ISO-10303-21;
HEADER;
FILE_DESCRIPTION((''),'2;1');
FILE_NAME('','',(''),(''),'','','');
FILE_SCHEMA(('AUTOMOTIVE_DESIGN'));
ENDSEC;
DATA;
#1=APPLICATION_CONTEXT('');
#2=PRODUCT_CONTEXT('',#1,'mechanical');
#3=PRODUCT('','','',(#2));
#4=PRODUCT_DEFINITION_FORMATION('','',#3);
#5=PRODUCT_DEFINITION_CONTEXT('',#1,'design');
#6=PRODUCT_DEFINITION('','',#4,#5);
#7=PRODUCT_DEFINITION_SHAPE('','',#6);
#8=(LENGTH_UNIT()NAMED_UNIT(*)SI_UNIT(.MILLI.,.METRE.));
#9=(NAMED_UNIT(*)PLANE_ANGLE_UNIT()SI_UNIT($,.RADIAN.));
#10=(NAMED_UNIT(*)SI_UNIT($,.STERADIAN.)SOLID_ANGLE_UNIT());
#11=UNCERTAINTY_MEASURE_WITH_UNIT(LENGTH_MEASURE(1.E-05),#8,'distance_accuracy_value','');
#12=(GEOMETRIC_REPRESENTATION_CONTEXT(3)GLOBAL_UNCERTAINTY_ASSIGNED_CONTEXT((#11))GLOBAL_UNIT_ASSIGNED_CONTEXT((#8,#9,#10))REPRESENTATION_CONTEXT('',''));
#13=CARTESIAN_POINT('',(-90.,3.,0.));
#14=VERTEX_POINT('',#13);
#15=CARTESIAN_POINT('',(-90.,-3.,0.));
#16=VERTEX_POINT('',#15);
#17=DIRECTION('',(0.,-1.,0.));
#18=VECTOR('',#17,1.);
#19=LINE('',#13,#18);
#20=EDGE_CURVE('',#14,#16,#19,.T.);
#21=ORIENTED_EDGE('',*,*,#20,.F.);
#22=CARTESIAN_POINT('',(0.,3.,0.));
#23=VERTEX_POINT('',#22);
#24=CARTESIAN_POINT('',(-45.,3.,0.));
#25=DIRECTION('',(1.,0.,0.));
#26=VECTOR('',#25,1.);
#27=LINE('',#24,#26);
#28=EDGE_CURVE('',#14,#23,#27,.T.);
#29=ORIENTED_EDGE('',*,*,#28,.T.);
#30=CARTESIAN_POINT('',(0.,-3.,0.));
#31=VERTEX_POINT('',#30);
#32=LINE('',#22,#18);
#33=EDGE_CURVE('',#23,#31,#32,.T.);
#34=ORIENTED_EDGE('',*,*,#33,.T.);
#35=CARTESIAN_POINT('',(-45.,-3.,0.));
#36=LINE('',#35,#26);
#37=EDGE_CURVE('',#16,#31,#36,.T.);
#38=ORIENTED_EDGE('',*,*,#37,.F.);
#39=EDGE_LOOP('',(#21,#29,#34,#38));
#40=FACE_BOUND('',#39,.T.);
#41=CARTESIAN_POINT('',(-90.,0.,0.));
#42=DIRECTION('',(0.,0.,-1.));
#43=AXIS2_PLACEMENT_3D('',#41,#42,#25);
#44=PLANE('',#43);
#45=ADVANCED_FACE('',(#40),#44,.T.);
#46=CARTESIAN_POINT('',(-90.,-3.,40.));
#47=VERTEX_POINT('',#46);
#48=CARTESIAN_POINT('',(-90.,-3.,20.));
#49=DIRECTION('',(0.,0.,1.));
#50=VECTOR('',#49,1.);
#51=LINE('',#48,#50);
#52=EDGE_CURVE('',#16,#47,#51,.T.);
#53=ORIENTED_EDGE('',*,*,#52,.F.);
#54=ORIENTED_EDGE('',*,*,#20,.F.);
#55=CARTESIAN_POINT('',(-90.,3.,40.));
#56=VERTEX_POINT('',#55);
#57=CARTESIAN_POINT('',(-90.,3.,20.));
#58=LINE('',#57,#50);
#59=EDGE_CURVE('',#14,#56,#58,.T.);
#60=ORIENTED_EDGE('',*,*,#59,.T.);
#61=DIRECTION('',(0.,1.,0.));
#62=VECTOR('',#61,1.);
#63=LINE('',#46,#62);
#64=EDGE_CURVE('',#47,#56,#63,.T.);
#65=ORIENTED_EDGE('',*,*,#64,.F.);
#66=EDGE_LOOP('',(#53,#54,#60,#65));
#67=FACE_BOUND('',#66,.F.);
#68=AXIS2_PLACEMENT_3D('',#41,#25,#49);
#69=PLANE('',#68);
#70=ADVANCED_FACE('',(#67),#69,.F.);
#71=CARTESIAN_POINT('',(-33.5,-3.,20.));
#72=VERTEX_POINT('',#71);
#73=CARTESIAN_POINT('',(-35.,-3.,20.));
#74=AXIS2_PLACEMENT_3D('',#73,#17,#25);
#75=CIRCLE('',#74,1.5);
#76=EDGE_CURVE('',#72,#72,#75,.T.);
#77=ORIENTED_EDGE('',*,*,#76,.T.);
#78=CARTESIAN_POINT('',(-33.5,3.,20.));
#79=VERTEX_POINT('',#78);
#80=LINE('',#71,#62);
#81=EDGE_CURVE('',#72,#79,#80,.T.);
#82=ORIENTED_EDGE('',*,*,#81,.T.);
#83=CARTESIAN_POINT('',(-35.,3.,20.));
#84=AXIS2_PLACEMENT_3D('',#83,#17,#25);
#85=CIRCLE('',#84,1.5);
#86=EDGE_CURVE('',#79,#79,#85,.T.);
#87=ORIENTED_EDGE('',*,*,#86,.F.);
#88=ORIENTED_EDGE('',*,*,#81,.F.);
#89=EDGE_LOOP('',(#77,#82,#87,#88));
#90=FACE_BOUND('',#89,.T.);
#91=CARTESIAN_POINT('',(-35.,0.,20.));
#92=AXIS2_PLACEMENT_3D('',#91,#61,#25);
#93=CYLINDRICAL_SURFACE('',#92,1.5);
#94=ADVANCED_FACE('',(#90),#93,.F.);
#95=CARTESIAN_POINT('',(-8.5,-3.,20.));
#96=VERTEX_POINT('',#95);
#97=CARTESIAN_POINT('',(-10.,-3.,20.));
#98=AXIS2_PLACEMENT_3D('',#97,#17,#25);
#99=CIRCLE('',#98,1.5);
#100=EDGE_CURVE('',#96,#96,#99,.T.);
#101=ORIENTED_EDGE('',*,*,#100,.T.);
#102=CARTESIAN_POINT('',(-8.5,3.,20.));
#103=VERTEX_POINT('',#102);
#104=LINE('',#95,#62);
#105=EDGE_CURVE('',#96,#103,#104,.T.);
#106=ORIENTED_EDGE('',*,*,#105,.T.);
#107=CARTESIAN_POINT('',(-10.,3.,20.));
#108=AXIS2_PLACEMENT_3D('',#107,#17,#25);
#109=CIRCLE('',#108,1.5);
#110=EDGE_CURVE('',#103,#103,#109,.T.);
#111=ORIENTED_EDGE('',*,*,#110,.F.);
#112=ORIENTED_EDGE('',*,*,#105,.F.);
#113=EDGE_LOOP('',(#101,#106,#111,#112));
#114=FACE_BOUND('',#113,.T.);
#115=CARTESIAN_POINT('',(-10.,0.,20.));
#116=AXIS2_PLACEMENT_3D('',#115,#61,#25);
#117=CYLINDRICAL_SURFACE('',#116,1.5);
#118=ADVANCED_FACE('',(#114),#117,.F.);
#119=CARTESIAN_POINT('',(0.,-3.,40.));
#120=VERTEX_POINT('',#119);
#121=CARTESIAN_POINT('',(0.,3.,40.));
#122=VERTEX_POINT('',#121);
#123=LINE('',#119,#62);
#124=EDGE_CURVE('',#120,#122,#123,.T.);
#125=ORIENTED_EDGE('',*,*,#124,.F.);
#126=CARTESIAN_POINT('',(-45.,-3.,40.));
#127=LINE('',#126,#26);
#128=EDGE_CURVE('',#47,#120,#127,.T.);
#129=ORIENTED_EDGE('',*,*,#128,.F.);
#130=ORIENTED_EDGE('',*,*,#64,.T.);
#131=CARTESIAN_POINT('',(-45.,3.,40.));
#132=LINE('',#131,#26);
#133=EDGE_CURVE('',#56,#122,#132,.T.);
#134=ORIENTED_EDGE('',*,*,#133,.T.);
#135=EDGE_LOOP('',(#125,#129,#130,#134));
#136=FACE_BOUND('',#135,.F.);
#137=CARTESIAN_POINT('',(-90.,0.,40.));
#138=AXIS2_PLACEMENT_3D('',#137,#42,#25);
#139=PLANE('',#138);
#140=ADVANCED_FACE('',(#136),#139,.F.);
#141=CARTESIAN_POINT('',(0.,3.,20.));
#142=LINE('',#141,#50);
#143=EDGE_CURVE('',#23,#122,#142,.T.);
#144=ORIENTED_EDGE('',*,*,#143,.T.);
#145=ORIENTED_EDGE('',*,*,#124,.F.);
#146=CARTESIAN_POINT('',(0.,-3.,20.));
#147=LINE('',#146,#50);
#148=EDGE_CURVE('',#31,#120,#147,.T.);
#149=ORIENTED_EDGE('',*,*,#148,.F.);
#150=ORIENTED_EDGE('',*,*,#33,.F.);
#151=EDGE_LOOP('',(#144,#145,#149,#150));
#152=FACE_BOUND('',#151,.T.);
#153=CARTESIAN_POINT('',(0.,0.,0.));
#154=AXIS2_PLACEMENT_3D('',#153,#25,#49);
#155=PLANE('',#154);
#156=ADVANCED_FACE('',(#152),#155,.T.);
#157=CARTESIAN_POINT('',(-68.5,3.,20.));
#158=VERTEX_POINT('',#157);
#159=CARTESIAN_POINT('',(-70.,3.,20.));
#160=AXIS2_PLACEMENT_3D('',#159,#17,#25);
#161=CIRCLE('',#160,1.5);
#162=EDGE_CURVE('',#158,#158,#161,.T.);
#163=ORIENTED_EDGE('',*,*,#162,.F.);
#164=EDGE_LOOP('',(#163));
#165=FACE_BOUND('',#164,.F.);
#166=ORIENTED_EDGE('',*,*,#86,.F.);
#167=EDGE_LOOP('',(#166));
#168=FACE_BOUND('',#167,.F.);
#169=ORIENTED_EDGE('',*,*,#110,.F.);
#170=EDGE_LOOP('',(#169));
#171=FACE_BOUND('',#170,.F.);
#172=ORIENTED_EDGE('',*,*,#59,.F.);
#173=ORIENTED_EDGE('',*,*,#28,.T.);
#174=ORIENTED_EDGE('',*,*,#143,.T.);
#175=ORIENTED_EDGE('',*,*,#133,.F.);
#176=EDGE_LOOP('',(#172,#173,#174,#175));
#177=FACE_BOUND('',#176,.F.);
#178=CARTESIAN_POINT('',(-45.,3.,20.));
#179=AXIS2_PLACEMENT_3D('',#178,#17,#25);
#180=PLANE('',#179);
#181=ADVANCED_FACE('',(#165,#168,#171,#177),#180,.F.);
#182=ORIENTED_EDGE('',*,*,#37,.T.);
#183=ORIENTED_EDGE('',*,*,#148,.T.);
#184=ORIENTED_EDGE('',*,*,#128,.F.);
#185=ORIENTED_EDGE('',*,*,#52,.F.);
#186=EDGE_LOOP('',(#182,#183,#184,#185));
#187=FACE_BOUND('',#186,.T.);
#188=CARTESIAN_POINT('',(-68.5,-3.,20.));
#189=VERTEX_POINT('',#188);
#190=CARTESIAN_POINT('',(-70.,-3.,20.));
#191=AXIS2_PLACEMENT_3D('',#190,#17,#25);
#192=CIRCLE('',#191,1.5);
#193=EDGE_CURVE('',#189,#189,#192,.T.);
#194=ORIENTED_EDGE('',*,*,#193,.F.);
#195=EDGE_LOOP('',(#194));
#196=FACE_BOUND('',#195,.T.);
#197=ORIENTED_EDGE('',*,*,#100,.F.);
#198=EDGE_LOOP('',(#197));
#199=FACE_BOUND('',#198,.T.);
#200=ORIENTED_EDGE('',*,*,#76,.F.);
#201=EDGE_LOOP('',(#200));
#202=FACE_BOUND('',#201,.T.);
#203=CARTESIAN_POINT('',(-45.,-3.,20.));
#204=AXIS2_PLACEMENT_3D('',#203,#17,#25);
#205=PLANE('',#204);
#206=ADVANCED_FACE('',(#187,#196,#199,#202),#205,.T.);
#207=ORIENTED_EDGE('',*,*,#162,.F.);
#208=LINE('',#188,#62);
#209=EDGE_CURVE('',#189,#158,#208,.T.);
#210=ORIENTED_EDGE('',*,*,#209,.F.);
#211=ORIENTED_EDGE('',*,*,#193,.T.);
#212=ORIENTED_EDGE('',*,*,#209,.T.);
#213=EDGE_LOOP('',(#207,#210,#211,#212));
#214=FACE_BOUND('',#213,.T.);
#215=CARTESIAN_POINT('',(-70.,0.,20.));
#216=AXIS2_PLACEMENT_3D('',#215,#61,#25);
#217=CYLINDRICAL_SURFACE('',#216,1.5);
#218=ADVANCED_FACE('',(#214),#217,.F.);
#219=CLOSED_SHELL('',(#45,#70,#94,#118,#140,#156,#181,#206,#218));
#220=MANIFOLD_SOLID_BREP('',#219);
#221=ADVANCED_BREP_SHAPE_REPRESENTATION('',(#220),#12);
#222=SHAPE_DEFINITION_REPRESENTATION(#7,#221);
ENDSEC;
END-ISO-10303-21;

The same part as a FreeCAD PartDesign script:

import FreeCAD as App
import Part
import Sketcher
from FreeCAD import Vector

doc = App.newDocument("Part")
body = doc.addObject("PartDesign::Body", "Body")

sketch1 = body.newObject("Sketcher::SketchObject", "Sketch")
sketch1.AttachmentSupport = (doc.getObject("XZ_Plane"), [""])
sketch1.MapMode = "FlatFace"
sketch1.addGeometry(Part.LineSegment(Vector(-90, 40, 0), Vector(-90, 0, 0)), False)
sketch1.addGeometry(Part.LineSegment(Vector(-90, 0, 0), Vector(0, 0, 0)), False)
sketch1.addGeometry(Part.LineSegment(Vector(0, 0, 0), Vector(0, 40, 0)), False)
sketch1.addGeometry(Part.LineSegment(Vector(0, 40, 0), Vector(-90, 40, 0)), False)
sketch1.addGeometry(Part.Circle(Vector(-70, 20, 0), Vector(0, 0, 1), 1.5), False)
sketch1.addGeometry(Part.Circle(Vector(-35, 20, 0), Vector(0, 0, 1), 1.5), False)
sketch1.addGeometry(Part.Circle(Vector(-10, 20, 0), Vector(0, 0, 1), 1.5), False)
sketch1.addConstraint(Sketcher.Constraint("Coincident", 0, 2, 1, 1))
sketch1.addConstraint(Sketcher.Constraint("Coincident", 1, 2, 2, 1))
sketch1.addConstraint(Sketcher.Constraint("Coincident", 2, 2, 3, 1))
sketch1.addConstraint(Sketcher.Constraint("Coincident", 3, 2, 0, 1))
sketch1.addConstraint(Sketcher.Constraint("Vertical", 0))
sketch1.addConstraint(Sketcher.Constraint("Horizontal", 1))
sketch1.addConstraint(Sketcher.Constraint("Vertical", 2))
sketch1.addConstraint(Sketcher.Constraint("Horizontal", 3))
sketch1.addConstraint(Sketcher.Constraint("Coincident", 1, 2, -1, 1))
sketch1.addConstraint(Sketcher.Constraint("Equal", 4, 5))
sketch1.addConstraint(Sketcher.Constraint("Equal", 5, 6))
sketch1.addConstraint(Sketcher.Constraint("Horizontal", 4, 3, 5, 3))
sketch1.addConstraint(Sketcher.Constraint("Horizontal", 5, 3, 6, 3))
sketch1.addConstraint(Sketcher.Constraint("Diameter", 4, 3.0))
sketch1.addConstraint(Sketcher.Constraint("DistanceX", 1, 1, 1, 2, 90.0))
sketch1.addConstraint(Sketcher.Constraint("DistanceY", 0, 2, 0, 1, 40.0))
sketch1.addConstraint(Sketcher.Constraint("DistanceX", 4, 3, -1, 1, 70.0))
sketch1.addConstraint(Sketcher.Constraint("DistanceY", -1, 1, 4, 3, 20.0))
sketch1.addConstraint(Sketcher.Constraint("DistanceX", 5, 3, -1, 1, 35.0))
sketch1.addConstraint(Sketcher.Constraint("DistanceX", 6, 3, -1, 1, 10.0))
pad1 = body.newObject("PartDesign::Pad", "Pad")
pad1.Profile = sketch1
pad1.Length = 6
pad1.Midplane = True

doc.recompute()
